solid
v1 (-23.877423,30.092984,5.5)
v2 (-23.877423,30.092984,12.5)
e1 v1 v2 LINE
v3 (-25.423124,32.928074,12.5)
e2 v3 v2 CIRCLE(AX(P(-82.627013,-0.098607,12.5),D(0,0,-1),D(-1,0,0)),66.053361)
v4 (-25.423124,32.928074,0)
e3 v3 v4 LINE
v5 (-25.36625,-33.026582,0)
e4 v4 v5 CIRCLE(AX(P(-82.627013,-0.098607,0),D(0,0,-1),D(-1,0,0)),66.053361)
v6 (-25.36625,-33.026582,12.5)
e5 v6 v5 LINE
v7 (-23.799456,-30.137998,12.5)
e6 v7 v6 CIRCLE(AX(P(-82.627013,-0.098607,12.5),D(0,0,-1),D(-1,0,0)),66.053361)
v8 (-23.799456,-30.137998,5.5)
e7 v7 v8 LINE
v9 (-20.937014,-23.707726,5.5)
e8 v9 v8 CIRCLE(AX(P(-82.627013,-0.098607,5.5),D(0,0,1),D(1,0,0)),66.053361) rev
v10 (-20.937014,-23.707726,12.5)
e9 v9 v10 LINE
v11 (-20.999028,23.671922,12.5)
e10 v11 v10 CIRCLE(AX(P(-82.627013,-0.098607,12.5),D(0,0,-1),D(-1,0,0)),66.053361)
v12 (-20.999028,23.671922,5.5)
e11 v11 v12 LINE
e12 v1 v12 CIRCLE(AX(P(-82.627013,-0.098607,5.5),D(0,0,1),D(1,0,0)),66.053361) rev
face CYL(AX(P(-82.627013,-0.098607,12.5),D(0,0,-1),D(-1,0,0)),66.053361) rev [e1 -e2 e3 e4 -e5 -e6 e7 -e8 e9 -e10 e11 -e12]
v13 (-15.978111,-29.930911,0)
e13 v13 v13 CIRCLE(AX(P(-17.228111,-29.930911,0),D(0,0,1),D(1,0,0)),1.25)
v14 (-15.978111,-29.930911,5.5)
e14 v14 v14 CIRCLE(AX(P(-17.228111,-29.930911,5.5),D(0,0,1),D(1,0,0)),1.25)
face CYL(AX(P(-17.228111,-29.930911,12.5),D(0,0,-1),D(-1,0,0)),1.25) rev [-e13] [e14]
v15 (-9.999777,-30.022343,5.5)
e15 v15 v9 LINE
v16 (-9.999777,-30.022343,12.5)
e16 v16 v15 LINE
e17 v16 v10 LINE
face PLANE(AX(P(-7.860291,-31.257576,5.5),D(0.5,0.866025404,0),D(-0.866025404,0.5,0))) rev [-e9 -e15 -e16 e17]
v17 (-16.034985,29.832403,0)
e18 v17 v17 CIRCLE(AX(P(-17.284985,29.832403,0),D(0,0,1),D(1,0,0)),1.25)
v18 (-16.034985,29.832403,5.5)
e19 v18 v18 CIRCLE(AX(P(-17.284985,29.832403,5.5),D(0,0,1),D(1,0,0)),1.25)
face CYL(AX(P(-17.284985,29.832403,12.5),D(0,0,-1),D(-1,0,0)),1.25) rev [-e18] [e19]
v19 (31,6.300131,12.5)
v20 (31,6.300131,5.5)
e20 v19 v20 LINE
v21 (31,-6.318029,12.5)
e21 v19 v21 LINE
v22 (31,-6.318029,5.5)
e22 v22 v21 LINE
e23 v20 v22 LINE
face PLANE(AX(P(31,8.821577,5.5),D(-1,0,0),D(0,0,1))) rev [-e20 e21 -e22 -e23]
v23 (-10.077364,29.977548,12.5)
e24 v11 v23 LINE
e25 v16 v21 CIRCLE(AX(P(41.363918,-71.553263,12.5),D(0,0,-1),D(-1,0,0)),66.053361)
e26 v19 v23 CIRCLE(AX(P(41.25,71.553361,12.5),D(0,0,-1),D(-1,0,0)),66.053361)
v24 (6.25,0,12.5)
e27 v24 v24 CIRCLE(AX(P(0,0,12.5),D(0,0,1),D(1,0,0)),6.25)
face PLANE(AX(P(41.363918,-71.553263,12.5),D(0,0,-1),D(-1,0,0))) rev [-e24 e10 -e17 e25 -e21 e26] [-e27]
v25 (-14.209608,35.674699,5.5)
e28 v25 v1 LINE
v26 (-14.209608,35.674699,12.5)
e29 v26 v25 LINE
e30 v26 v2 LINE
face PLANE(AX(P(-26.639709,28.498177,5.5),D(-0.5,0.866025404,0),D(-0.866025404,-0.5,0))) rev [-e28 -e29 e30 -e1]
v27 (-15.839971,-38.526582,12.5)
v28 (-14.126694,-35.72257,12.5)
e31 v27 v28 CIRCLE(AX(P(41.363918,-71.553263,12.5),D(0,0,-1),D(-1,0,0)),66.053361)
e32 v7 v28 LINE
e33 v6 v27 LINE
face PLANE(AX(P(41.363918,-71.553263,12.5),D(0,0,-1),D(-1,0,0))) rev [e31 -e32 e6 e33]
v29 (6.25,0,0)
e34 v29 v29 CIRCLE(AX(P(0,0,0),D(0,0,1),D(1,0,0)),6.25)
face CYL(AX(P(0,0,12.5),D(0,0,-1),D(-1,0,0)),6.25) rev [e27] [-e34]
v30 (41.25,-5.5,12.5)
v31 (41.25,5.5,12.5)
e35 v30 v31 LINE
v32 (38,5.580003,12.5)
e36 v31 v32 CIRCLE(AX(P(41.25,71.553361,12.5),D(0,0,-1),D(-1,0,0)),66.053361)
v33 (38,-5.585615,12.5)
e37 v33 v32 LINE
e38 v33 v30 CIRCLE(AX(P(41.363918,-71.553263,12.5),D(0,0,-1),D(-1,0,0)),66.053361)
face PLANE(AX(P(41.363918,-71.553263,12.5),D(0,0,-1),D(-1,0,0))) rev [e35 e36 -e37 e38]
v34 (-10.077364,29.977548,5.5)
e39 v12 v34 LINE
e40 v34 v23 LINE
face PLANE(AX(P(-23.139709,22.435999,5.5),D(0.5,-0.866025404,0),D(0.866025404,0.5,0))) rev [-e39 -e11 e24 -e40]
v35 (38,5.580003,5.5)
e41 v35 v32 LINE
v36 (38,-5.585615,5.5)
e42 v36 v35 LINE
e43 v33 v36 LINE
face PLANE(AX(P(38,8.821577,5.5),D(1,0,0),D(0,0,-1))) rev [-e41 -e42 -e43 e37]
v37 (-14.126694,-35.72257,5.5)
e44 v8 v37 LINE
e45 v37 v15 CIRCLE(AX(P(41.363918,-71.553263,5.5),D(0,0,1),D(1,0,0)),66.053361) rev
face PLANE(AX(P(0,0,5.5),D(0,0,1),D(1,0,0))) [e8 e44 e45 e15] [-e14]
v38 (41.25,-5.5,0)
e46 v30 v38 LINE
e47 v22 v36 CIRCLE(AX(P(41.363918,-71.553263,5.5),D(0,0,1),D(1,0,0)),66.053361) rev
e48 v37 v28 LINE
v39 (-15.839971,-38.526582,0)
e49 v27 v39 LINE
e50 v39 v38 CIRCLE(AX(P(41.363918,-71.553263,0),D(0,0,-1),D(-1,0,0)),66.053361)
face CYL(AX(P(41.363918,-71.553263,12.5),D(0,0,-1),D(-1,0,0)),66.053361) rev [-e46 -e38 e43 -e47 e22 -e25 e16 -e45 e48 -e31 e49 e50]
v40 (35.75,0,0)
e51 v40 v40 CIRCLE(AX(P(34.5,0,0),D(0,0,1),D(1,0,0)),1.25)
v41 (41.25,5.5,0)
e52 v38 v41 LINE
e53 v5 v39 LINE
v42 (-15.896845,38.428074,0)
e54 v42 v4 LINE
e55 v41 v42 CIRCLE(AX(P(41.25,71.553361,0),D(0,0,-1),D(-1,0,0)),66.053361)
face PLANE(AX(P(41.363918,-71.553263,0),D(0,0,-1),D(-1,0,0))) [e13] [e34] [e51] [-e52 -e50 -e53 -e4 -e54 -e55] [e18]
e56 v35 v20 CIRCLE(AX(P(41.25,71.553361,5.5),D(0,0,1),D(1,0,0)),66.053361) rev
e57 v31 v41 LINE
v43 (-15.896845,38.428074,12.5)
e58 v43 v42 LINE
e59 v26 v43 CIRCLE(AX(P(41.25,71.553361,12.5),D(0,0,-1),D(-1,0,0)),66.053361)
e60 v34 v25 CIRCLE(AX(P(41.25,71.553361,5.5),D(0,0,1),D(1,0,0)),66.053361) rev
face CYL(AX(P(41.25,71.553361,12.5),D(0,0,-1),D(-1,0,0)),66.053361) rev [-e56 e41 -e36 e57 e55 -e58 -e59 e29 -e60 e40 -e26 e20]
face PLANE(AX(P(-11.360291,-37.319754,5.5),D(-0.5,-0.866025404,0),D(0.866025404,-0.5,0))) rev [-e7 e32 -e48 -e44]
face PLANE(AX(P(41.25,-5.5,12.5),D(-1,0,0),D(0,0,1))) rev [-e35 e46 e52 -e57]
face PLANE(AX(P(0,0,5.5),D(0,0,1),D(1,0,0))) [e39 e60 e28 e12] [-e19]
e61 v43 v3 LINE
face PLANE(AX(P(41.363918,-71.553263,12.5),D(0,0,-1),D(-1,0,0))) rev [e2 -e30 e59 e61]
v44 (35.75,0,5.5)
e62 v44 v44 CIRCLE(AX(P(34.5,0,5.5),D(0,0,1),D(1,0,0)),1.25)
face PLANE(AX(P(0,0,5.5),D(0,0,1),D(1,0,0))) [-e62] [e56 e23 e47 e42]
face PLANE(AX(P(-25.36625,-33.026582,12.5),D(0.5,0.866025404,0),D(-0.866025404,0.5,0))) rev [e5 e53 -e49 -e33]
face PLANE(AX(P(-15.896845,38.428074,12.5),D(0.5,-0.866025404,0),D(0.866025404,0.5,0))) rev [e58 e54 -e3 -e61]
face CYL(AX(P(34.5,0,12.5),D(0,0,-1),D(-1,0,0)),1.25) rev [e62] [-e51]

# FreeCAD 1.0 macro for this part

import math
import FreeCAD as App
import Part
import Sketcher

V = App.Vector
Q = App.Units.Quantity

doc = App.newDocument("Part")
body = doc.addObject("PartDesign::Body", "Body")

# Sketch on XY plane
sketch1 = body.newObject("Sketcher::SketchObject", "Sketch")
sketch1.AttachmentSupport = (doc.getObject("XY_Plane"), [""])
sketch1.MapMode = "FlatFace"
sketch1.addGeometry([
    Part.LineSegment(V(41.25, -5.5, 0), V(41.25, 5.5, 0)),  # 0
    Part.ArcOfCircle(Part.Circle(V(41.25, 71.553361, 0), V(0, 0, 1), 66.053361), math.radians(-149.901186), math.radians(-90)),  # 1
    Part.LineSegment(V(-15.896845, 38.428074, 0), V(-25.423124, 32.928074, 0)),  # 2
    Part.ArcOfCircle(Part.Circle(V(-82.627013, -0.098607, 0), V(0, 0, 1), 66.053361), math.radians(-29.901186), math.radians(30)),  # 3
    Part.LineSegment(V(-25.36625, -33.026582, 0), V(-15.839971, -38.526582, 0)),  # 4
    Part.ArcOfCircle(Part.Circle(V(41.363918, -71.553263, 0), V(0, 0, 1), 66.053361), math.radians(90.098814), math.radians(150)),  # 5
    Part.Circle(V(-17.228111, -29.930911, 0), V(0, 0, 1), 1.25),  # 6
    Part.Circle(V(0, 0, 0), V(0, 0, 1), 6.25),  # 7
    Part.Circle(V(-17.284985, 29.832403, 0), V(0, 0, 1), 1.25),  # 8
    Part.Circle(V(34.5, 0, 0), V(0, 0, 1), 1.25),  # 9
], False)
sketch1.addConstraint([
    Sketcher.Constraint("Coincident", 0, 2, 1, 2),
    Sketcher.Constraint("Coincident", 1, 1, 2, 1),
    Sketcher.Constraint("Coincident", 2, 2, 3, 2),
    Sketcher.Constraint("Coincident", 3, 1, 4, 1),
    Sketcher.Constraint("Coincident", 4, 2, 5, 2),
    Sketcher.Constraint("Coincident", 5, 1, 0, 1),
    Sketcher.Constraint("Vertical", 0),
    Sketcher.Constraint("Coincident", 7, 3, -1, 1),
    Sketcher.Constraint("Equal", 1, 3),
    Sketcher.Constraint("Equal", 3, 5),
    Sketcher.Constraint("Equal", 6, 8),
    Sketcher.Constraint("Equal", 8, 9),
    Sketcher.Constraint("PointOnObject", 9, 3, -1),
    Sketcher.Constraint("Vertical", 1, 3, 0, 2),
    Sketcher.Constraint("Equal", 2, 4),
    Sketcher.Constraint("Diameter", 6, 2.5),
    Sketcher.Constraint("Diameter", 7, 12.5),
    Sketcher.Constraint("DistanceY", 0, 1, 0, 2, 11.0),
    Sketcher.Constraint("Angle", 2, Q("-150 deg")),
    Sketcher.Constraint("Angle", 4, Q("-30 deg")),
    Sketcher.Constraint("Distance", 2, 11.0),
    Sketcher.Constraint("DistanceX", -1, 1, 9, 3, 34.5),
    Sketcher.Constraint("DistanceY", -1, 1, 0, 2, 5.5),
    Sketcher.Constraint("DistanceX", -1, 1, 1, 3, 41.25),
    Sketcher.Constraint("Radius", 1, 66.053361),
    Sketcher.Constraint("DistanceX", 6, 3, -1, 1, 17.228111),
    Sketcher.Constraint("DistanceY", 6, 3, -1, 1, 29.930911),
    Sketcher.Constraint("DistanceX", 3, 1, -1, 1, 25.36625),
    Sketcher.Constraint("DistanceX", 3, 3, 5, 3, 123.990931),
    Sketcher.Constraint("DistanceX", 3, 3, 8, 3, 65.342029),
    Sketcher.Constraint("DistanceY", 3, 3, 8, 3, 29.931009),
    Sketcher.Constraint("DistanceX", 8, 3, 1, 1, 1.38814),
])
pad1 = body.newObject("PartDesign::Pad", "Pad")
pad1.Profile = sketch1
pad1.Length = 12.5

# Sketch on XY plane
sketch2 = body.newObject("Sketcher::SketchObject", "Sketch001")
sketch2.AttachmentSupport = (doc.getObject("XY_Plane"), [""])
sketch2.MapMode = "FlatFace"
sketch2.AttachmentOffset = App.Placement(V(0, 0, 12.5), App.Rotation())
sketch2.addGeometry([
    Part.LineSegment(V(31, 8.821577, 0), V(31, -9.86212, 0)),  # 0
    Part.LineSegment(V(31, -9.86212, 0), V(38, -9.86212, 0)),  # 1
    Part.LineSegment(V(38, -9.86212, 0), V(38, 8.821577, 0)),  # 2
    Part.LineSegment(V(38, 8.821577, 0), V(31, 8.821577, 0)),  # 3
    Part.LineSegment(V(-11.360291, -37.319754, 0), V(-7.860291, -31.257576, 0)),  # 4
    Part.LineSegment(V(-7.860291, -31.257576, 0), V(-24.040847, -21.915727, 0)),  # 5
    Part.LineSegment(V(-24.040847, -21.915727, 0), V(-27.540847, -27.977905, 0)),  # 6
    Part.LineSegment(V(-27.540847, -27.977905, 0), V(-11.360291, -37.319754, 0)),  # 7
    Part.LineSegment(V(-26.639709, 28.498177, 0), V(-23.139709, 22.435999, 0)),  # 8
    Part.LineSegment(V(-23.139709, 22.435999, 0), V(-6.959153, 31.777848, 0)),  # 9
    Part.LineSegment(V(-6.959153, 31.777848, 0), V(-10.459153, 37.840025, 0)),  # 10
    Part.LineSegment(V(-10.459153, 37.840025, 0), V(-26.639709, 28.498177, 0)),  # 11
], False)
sketch2.addConstraint([
    Sketcher.Constraint("Coincident", 0, 2, 1, 1),
    Sketcher.Constraint("Coincident", 1, 2, 2, 1),
    Sketcher.Constraint("Coincident", 2, 2, 3, 1),
    Sketcher.Constraint("Coincident", 3, 2, 0, 1),
    Sketcher.Constraint("Coincident", 4, 2, 5, 1),
    Sketcher.Constraint("Coincident", 5, 2, 6, 1),
    Sketcher.Constraint("Coincident", 6, 2, 7, 1),
    Sketcher.Constraint("Coincident", 7, 2, 4, 1),
    Sketcher.Constraint("Coincident", 8, 2, 9, 1),
    Sketcher.Constraint("Coincident", 9, 2, 10, 1),
    Sketcher.Constraint("Coincident", 10, 2, 11, 1),
    Sketcher.Constraint("Coincident", 11, 2, 8, 1),
    Sketcher.Constraint("Vertical", 0),
    Sketcher.Constraint("Horizontal", 1),
    Sketcher.Constraint("Vertical", 2),
    Sketcher.Constraint("Horizontal", 3),
    Sketcher.Constraint("Perpendicular", 4, 5),
    Sketcher.Constraint("Perpendicular", 5, 6),
    Sketcher.Constraint("Perpendicular", 6, 7),
    Sketcher.Constraint("Perpendicular", 8, 9),
    Sketcher.Constraint("Perpendicular", 9, 10),
    Sketcher.Constraint("Perpendicular", 10, 11),
    Sketcher.Constraint("Equal", 6, 8),
    Sketcher.Constraint("Equal", 7, 9),
    Sketcher.Constraint("DistanceX", 1, 1, 1, 2, 7.0),
    Sketcher.Constraint("Angle", 4, Q("60 deg")),
    Sketcher.Constraint("Angle", 8, Q("-60 deg")),
    Sketcher.Constraint("Distance", 4, 7.0),
    Sketcher.Constraint("DistanceX", -1, 1, 0, 2, 31.0),
    Sketcher.Constraint("DistanceY", -1, 1, 8, 2, 22.435999),
    Sketcher.Constraint("DistanceY", 0, 2, 0, 1, 18.683697),
    Sketcher.Constraint("DistanceY", 0, 2, -1, 1, 9.86212),
    Sketcher.Constraint("DistanceX", 4, 2, -1, 1, 7.860291),
    Sketcher.Constraint("DistanceX", 8, 2, -1, 1, 23.139709),
    Sketcher.Constraint("DistanceY", 4, 2, 5, 2, 9.341848),
    Sketcher.Constraint("DistanceY", 6, 2, 3, 2, 36.799482),
])
pocket1 = body.newObject("PartDesign::Pocket", "Pocket")
pocket1.Profile = sketch2
pocket1.Length = 7

doc.recompute()
